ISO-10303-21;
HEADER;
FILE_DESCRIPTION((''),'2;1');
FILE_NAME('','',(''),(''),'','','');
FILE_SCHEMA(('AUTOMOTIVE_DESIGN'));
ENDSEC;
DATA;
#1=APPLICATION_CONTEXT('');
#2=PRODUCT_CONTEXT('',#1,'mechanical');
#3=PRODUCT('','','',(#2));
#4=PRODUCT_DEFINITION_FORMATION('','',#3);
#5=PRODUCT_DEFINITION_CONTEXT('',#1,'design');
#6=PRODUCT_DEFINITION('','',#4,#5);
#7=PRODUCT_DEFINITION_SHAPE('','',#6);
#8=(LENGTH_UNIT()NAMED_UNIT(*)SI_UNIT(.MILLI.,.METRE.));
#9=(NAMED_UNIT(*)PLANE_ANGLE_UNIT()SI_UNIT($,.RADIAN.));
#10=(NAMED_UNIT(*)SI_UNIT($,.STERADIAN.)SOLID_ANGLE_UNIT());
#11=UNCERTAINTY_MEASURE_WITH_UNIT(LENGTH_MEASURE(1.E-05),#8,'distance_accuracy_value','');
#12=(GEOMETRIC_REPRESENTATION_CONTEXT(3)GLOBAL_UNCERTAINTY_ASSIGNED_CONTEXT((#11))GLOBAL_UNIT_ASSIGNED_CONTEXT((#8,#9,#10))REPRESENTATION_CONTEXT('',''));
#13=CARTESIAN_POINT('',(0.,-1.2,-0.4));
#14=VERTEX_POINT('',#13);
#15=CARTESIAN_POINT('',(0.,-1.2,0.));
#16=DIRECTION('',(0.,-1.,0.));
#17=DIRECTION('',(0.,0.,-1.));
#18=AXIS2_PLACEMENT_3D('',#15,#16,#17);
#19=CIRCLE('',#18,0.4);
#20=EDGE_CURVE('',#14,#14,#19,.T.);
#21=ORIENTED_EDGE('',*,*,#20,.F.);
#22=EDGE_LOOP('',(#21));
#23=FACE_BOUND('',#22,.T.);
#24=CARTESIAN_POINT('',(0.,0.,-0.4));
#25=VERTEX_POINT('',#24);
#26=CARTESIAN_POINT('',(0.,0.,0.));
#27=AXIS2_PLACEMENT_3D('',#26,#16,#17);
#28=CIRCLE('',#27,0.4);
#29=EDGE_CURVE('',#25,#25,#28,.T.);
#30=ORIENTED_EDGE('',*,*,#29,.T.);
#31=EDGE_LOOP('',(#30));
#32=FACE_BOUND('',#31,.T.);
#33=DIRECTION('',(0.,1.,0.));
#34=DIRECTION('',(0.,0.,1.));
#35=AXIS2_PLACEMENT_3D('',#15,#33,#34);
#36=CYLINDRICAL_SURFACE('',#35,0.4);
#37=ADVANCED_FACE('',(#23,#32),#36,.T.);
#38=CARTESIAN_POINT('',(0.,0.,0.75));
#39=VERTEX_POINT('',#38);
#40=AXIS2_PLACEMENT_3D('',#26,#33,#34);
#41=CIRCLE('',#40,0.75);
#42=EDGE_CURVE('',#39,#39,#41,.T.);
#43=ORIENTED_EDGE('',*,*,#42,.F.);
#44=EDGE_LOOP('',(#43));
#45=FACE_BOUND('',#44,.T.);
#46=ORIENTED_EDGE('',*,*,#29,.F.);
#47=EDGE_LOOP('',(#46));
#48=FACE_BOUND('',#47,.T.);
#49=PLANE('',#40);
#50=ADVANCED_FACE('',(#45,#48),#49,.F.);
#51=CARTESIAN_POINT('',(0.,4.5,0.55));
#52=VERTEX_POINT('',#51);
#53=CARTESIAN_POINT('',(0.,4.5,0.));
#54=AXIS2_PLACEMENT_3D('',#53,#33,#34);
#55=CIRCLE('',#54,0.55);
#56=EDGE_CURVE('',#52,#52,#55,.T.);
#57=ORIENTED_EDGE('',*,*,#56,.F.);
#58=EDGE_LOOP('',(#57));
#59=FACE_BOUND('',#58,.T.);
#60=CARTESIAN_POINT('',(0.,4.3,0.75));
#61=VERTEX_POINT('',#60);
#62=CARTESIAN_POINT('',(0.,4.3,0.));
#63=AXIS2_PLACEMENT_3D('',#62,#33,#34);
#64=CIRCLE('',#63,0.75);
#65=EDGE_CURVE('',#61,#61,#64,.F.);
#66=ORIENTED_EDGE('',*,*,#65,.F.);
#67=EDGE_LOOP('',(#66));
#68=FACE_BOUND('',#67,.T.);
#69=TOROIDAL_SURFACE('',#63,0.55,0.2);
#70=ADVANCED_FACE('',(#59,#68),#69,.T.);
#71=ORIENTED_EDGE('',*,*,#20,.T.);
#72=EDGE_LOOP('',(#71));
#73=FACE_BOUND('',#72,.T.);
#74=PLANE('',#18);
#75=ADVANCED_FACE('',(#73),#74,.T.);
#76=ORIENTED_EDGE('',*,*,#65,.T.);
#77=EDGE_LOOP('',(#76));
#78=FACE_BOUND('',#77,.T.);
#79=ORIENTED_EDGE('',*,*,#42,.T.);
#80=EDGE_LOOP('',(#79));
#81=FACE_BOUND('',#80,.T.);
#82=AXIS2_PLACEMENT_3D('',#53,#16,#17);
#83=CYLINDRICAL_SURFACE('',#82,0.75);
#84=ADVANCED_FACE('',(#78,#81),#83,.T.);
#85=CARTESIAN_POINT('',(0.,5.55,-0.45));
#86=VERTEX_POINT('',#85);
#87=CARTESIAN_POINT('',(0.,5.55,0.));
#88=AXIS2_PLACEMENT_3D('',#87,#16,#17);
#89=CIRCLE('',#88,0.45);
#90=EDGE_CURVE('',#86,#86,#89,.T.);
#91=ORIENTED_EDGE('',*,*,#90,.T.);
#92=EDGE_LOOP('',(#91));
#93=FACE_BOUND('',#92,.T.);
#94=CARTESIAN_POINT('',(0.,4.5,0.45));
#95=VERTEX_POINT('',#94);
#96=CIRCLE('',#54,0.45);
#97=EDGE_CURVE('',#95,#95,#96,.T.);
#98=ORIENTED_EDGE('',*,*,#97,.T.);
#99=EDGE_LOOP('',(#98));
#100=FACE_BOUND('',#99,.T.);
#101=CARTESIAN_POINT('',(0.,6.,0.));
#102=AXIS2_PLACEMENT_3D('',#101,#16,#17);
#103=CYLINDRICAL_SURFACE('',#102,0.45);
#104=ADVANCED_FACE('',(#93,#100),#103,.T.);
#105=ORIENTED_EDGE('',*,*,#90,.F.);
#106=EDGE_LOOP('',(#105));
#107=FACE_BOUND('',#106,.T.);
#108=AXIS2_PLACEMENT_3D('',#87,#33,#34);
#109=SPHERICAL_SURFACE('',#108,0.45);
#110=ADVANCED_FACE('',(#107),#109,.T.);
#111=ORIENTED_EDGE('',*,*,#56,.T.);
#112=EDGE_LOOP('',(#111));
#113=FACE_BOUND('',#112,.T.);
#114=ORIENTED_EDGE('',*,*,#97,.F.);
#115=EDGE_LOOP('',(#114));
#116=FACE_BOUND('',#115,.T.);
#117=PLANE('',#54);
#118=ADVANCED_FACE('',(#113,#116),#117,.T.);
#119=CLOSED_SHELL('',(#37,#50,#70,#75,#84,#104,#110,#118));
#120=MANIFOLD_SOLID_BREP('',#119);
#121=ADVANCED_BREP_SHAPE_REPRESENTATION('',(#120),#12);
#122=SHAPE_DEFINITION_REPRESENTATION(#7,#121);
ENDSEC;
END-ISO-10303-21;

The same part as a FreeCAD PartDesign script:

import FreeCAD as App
import Part
import Sketcher
Q = App.Units.Quantity


def edges_at(feature, points):
    """Names of the edges that pass closest to the given points."""
    edges = feature.Shape.Edges
    near = lambda p: min(range(len(edges)), key=lambda i: edges[i].distToShape(Part.Vertex(*p))[0])
    return sorted({f"Edge{near(p) + 1}" for p in points})

doc = App.newDocument("Part")
body = doc.addObject("PartDesign::Body", "Body")

# Sketch on XZ plane
sketch1 = body.newObject("Sketcher::SketchObject", "Sketch")
sketch1.AttachmentSupport = (doc.getObject("XZ_Plane"), [""])
sketch1.MapMode = "FlatFace"
sketch1.addGeometry(Part.Circle(App.Vector(0, 0, 0), App.Vector(0, 0, 1), 0.8), False)
sketch1.addConstraint([
    Sketcher.Constraint("Coincident", 0, 3, -1, 1),
    Sketcher.Constraint("Diameter", 0, Q("1.5 mm")),
])
pad1 = body.newObject("PartDesign::Pad", "Pad")
pad1.Profile = sketch1
pad1.Length = 4.5
pad1.Reversed = True

# Sketch on XZ plane
sketch2 = body.newObject("Sketcher::SketchObject", "Sketch001")
sketch2.AttachmentSupport = (doc.getObject("XZ_Plane"), [""])
sketch2.MapMode = "FlatFace"
sketch2.AttachmentOffset = App.Placement(App.Vector(0, 0, -4.5), App.Rotation())
sketch2.addGeometry(Part.Circle(App.Vector(0, 0, 0), App.Vector(0, 0, 1), 0.45), False)
sketch2.addConstraint([
    Sketcher.Constraint("Coincident", 0, 3, -1, 1),
    Sketcher.Constraint("Diameter", 0, Q("0.9 mm")),
])
pad2 = body.newObject("PartDesign::Pad", "Pad001")
pad2.Profile = sketch2
pad2.Length = 1.5
pad2.Reversed = True

# Sketch on XZ plane
sketch3 = body.newObject("Sketcher::SketchObject", "Sketch002")
sketch3.AttachmentSupport = (doc.getObject("XZ_Plane"), [""])
sketch3.MapMode = "FlatFace"
sketch3.addGeometry(Part.Circle(App.Vector(0, 0, 0), App.Vector(0, 0, 1), 0.4), False)
sketch3.addConstraint([
    Sketcher.Constraint("Coincident", 0, 3, -1, 1),
    Sketcher.Constraint("Diameter", 0, Q("0.8 mm")),
])
pad3 = body.newObject("PartDesign::Pad", "Pad002")
pad3.Profile = sketch3
pad3.Length = 1.2
doc.recompute()

fillet = body.newObject("PartDesign::Fillet", "Fillet")
fillet.Base = (pad3, edges_at(pad3, [(0, 4.5, -0.75)]))
fillet.Radius = 0.2
doc.recompute()

fillet2 = body.newObject("PartDesign::Fillet", "Fillet001")
fillet2.Base = (fillet, edges_at(fillet, [(0, 6, -0.45)]))
fillet2.Radius = 0.45

doc.recompute()
